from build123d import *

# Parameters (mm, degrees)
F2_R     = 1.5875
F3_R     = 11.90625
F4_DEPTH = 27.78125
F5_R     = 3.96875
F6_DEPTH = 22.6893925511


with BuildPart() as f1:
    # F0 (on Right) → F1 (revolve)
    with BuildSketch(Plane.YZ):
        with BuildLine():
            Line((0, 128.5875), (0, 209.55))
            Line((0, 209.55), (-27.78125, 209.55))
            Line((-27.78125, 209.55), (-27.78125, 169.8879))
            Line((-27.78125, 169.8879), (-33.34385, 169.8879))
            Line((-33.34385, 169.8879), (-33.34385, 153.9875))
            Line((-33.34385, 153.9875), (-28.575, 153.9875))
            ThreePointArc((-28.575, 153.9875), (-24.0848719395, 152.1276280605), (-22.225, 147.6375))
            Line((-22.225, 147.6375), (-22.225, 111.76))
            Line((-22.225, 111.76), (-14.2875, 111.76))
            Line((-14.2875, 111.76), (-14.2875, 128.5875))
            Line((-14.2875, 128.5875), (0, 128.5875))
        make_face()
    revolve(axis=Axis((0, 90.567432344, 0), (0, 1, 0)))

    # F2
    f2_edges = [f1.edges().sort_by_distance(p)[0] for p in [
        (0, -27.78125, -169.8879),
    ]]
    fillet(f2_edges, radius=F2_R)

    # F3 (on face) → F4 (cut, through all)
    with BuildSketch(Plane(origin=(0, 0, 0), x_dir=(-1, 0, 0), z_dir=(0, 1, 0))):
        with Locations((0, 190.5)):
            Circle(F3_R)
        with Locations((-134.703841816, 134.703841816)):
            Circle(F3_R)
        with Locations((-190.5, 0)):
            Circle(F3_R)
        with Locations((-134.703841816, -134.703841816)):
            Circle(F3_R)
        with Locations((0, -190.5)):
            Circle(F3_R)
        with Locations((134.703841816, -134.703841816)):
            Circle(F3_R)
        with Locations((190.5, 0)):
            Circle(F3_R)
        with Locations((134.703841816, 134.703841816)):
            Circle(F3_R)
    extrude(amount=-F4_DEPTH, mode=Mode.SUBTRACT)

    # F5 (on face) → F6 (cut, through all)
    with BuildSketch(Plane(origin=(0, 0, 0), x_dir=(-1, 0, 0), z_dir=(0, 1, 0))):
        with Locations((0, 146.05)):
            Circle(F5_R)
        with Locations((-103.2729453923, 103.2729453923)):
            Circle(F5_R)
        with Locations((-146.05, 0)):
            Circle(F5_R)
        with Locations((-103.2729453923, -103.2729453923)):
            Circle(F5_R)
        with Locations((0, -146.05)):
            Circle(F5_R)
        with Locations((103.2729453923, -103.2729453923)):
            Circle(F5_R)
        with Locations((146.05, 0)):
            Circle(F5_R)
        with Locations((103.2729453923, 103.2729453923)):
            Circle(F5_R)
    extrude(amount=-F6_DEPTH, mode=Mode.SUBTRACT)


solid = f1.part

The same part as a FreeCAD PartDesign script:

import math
import FreeCAD as App
import Part
import Sketcher
Q = App.Units.Quantity


def edges_at(feature, points):
    """Names of the edges that pass closest to the given points."""
    edges = feature.Shape.Edges
    near = lambda p: min(range(len(edges)), key=lambda i: edges[i].distToShape(Part.Vertex(*p))[0])
    return sorted({f"Edge{near(p) + 1}" for p in points})

doc = App.newDocument("Part")
params = doc.addObject("Spreadsheet::Sheet", "Params")
for row, (alias, value) in enumerate([
    ("sketch1_radius", "0.25 in"),
    ("sketch1_width", "1.09375 in"),
    ("sketch1_width2", "0.219 in"),
    ("sketch1_width3", "0.3125 in"),
    ("sketch1_width4", "0.5625 in"),
    ("revolution_angle", "360 deg"),
    ("fillet_radius", "0.0625 in"),
    ("sketch2_diameter", "0.9375 in"),
    ("sketch3_diameter", "0.3125 in"),
], start=1):
    params.set(f"A{row}", alias)
    params.set(f"B{row}", "=" + value)
    params.setAlias(f"B{row}", alias)

body = doc.addObject("PartDesign::Body", "Body")

# Sketch on YZ plane
sketch1 = body.newObject("Sketcher::SketchObject", "Sketch")
sketch1.AttachmentSupport = (doc.getObject("YZ_Plane"), [""])
sketch1.MapMode = "FlatFace"
sketch1.addGeometry([
    Part.LineSegment(App.Vector(0, 128.5875, 0), App.Vector(0, 209.55, 0)),  # 0
    Part.LineSegment(App.Vector(0, 209.55, 0), App.Vector(-27.78125, 209.55, 0)),  # 1
    Part.LineSegment(App.Vector(-27.78125, 209.55, 0), App.Vector(-27.78125, 169.8879, 0)),  # 2
    Part.LineSegment(App.Vector(-27.78125, 169.8879, 0), App.Vector(-33.34385, 169.8879, 0)),  # 3
    Part.LineSegment(App.Vector(-33.34385, 169.8879, 0), App.Vector(-33.34385, 153.9875, 0)),  # 4
    Part.LineSegment(App.Vector(-33.34385, 153.9875, 0), App.Vector(-28.575, 153.9875, 0)),  # 5
    Part.ArcOfCircle(Part.Circle(App.Vector(-28.575, 147.6375, 0), App.Vector(0, 0, 1), 6.35), math.radians(0), math.radians(90)),  # 6
    Part.LineSegment(App.Vector(-22.225, 147.6375, 0), App.Vector(-22.225, 111.76, 0)),  # 7
    Part.LineSegment(App.Vector(-22.225, 111.76, 0), App.Vector(-14.2875, 111.76, 0)),  # 8
    Part.LineSegment(App.Vector(-14.2875, 111.76, 0), App.Vector(-14.2875, 128.5875, 0)),  # 9
    Part.LineSegment(App.Vector(-14.2875, 128.5875, 0), App.Vector(0, 128.5875, 0)),  # 10
], False)
sketch1.addConstraint([
    Sketcher.Constraint("Coincident", 0, 2, 1, 1),
    Sketcher.Constraint("Coincident", 1, 2, 2, 1),
    Sketcher.Constraint("Coincident", 2, 2, 3, 1),
    Sketcher.Constraint("Coincident", 3, 2, 4, 1),
    Sketcher.Constraint("Coincident", 4, 2, 5, 1),
    Sketcher.Constraint("Tangent", 5, 2, 6, 2),
    Sketcher.Constraint("Tangent", 6, 1, 7, 1),
    Sketcher.Constraint("Coincident", 7, 2, 8, 1),
    Sketcher.Constraint("Coincident", 8, 2, 9, 1),
    Sketcher.Constraint("Coincident", 9, 2, 10, 1),
    Sketcher.Constraint("Coincident", 10, 2, 0, 1),
    Sketcher.Constraint("Vertical", 0),
    Sketcher.Constraint("Horizontal", 1),
    Sketcher.Constraint("Vertical", 2),
    Sketcher.Constraint("Horizontal", 3),
    Sketcher.Constraint("Vertical", 4),
    Sketcher.Constraint("Horizontal", 5),
    Sketcher.Constraint("Vertical", 7),
    Sketcher.Constraint("Horizontal", 8),
    Sketcher.Constraint("Vertical", 9),
    Sketcher.Constraint("Horizontal", 10),
    Sketcher.Constraint("PointOnObject", 0, 2, -2),
    Sketcher.Constraint("Radius", 6, Q("0.25 in")),
    Sketcher.Constraint("DistanceY", 9, 2, 5, 2, Q("1 in")),
    Sketcher.Constraint("DistanceY", -1, 1, 7, 2, Q("4.4 in")),
    Sketcher.Constraint("DistanceX", 1, 2, 1, 1, Q("1.09375 in")),
    Sketcher.Constraint("DistanceX", 3, 2, 3, 1, Q("0.219 in")),
    Sketcher.Constraint("DistanceX", 8, 1, 8, 2, Q("0.3125 in")),
    Sketcher.Constraint("DistanceX", 10, 1, 10, 2, Q("0.5625 in")),
    Sketcher.Constraint("DistanceY", 0, 1, 0, 2, Q("3.1875 in")),
    Sketcher.Constraint("DistanceY", 4, 2, 4, 1, Q("0.626 in")),
    Sketcher.Constraint("DistanceY", -1, 1, 0, 2, Q("8.25 in")),
])
sketch1.setExpression("Constraints[22]", "Params.sketch1_radius")
sketch1.setExpression("Constraints[25]", "Params.sketch1_width")
sketch1.setExpression("Constraints[26]", "Params.sketch1_width2")
sketch1.setExpression("Constraints[27]", "Params.sketch1_width3")
sketch1.setExpression("Constraints[28]", "Params.sketch1_width4")
revolution = body.newObject("PartDesign::Revolution", "Revolution")
revolution.Profile = sketch1
revolution.ReferenceAxis = (sketch1, ["H_Axis"])
revolution.setExpression("Angle", "Params.revolution_angle")
doc.recompute()

fillet = body.newObject("PartDesign::Fillet", "Fillet")
fillet.Base = (revolution, edges_at(revolution, [(0, -27.781, -169.888)]))
fillet.setExpression("Radius", "Params.fillet_radius")

# Sketch on XZ plane
sketch2 = body.newObject("Sketcher::SketchObject", "Sketch001")
sketch2.AttachmentSupport = (doc.getObject("XZ_Plane"), [""])
sketch2.MapMode = "FlatFace"
sketch2.addGeometry([
    Part.Circle(App.Vector(0, 190.5, 0), App.Vector(0, 0, 1), 11.90625),  # 0
    Part.Circle(App.Vector(134.703842, 134.703842, 0), App.Vector(0, 0, 1), 11.90625),  # 1
    Part.Circle(App.Vector(190.5, 0, 0), App.Vector(0, 0, 1), 11.90625),  # 2
    Part.Circle(App.Vector(134.703842, -134.703842, 0), App.Vector(0, 0, 1), 11.90625),  # 3
    Part.Circle(App.Vector(0, -190.5, 0), App.Vector(0, 0, 1), 11.90625),  # 4
    Part.Circle(App.Vector(-134.703842, -134.703842, 0), App.Vector(0, 0, 1), 11.90625),  # 5
    Part.Circle(App.Vector(-190.5, 0, 0), App.Vector(0, 0, 1), 11.90625),  # 6
    Part.Circle(App.Vector(-134.703842, 134.703842, 0), App.Vector(0, 0, 1), 11.90625),  # 7
], False)
sketch2.addConstraint([
    Sketcher.Constraint("Equal", 0, 1),
    Sketcher.Constraint("Equal", 1, 2),
    Sketcher.Constraint("Equal", 2, 3),
    Sketcher.Constraint("Equal", 3, 4),
    Sketcher.Constraint("Equal", 4, 5),
    Sketcher.Constraint("Equal", 5, 6),
    Sketcher.Constraint("Equal", 6, 7),
    Sketcher.Constraint("Symmetric", 0, 3, 4, 3, -1, 1),
    Sketcher.Constraint("Symmetric", 1, 3, 5, 3, -1, 1),
    Sketcher.Constraint("Symmetric", 2, 3, 6, 3, -1, 1),
    Sketcher.Constraint("Symmetric", 3, 3, 7, 3, -1, 1),
    Sketcher.Constraint("Symmetric", 3, 3, 5, 3, -2),
    Sketcher.Constraint("PointOnObject", 0, 3, -2),
    Sketcher.Constraint("PointOnObject", 2, 3, -1),
    Sketcher.Constraint("Diameter", 0, Q("0.9375 in")),
    Sketcher.Constraint("DistanceY", 4, 3, 0, 3, Q("15 in")),
    Sketcher.Constraint("DistanceX", -1, 1, 2, 3, Q("7.5 in")),
    Sketcher.Constraint("DistanceX", -1, 1, 1, 3, Q("134.703842 mm")),
    Sketcher.Constraint("DistanceY", -1, 1, 1, 3, Q("134.703842 mm")),
])
sketch2.setExpression("Constraints[14]", "Params.sketch2_diameter")
pocket1 = body.newObject("PartDesign::Pocket", "Pocket")
pocket1.Profile = sketch2
pocket1.Type = "ThroughAll"
pocket1.Reversed = True

# Sketch on XZ plane
sketch3 = body.newObject("Sketcher::SketchObject", "Sketch002")
sketch3.AttachmentSupport = (doc.getObject("XZ_Plane"), [""])
sketch3.MapMode = "FlatFace"
sketch3.addGeometry([
    Part.Circle(App.Vector(0, 146.05, 0), App.Vector(0, 0, 1), 3.96875),  # 0
    Part.Circle(App.Vector(103.272945, 103.272945, 0), App.Vector(0, 0, 1), 3.96875),  # 1
    Part.Circle(App.Vector(146.05, 0, 0), App.Vector(0, 0, 1), 3.96875),  # 2
    Part.Circle(App.Vector(103.272945, -103.272945, 0), App.Vector(0, 0, 1), 3.96875),  # 3
    Part.Circle(App.Vector(0, -146.05, 0), App.Vector(0, 0, 1), 3.96875),  # 4
    Part.Circle(App.Vector(-103.272945, -103.272945, 0), App.Vector(0, 0, 1), 3.96875),  # 5
    Part.Circle(App.Vector(-146.05, 0, 0), App.Vector(0, 0, 1), 3.96875),  # 6
    Part.Circle(App.Vector(-103.272945, 103.272945, 0), App.Vector(0, 0, 1), 3.96875),  # 7
], False)
sketch3.addConstraint([
    Sketcher.Constraint("Equal", 0, 1),
    Sketcher.Constraint("Equal", 1, 2),
    Sketcher.Constraint("Equal", 2, 3),
    Sketcher.Constraint("Equal", 3, 4),
    Sketcher.Constraint("Equal", 4, 5),
    Sketcher.Constraint("Equal", 5, 6),
    Sketcher.Constraint("Equal", 6, 7),
    Sketcher.Constraint("Symmetric", 0, 3, 4, 3, -1, 1),
    Sketcher.Constraint("Symmetric", 1, 3, 5, 3, -1, 1),
    Sketcher.Constraint("Symmetric", 2, 3, 6, 3, -1, 1),
    Sketcher.Constraint("Symmetric", 3, 3, 7, 3, -1, 1),
    Sketcher.Constraint("Symmetric", 3, 3, 5, 3, -2),
    Sketcher.Constraint("PointOnObject", 0, 3, -2),
    Sketcher.Constraint("PointOnObject", 2, 3, -1),
    Sketcher.Constraint("Diameter", 0, Q("0.3125 in")),
    Sketcher.Constraint("DistanceY", 4, 3, 0, 3, Q("11.5 in")),
    Sketcher.Constraint("DistanceX", -1, 1, 2, 3, Q("5.75 in")),
    Sketcher.Constraint("DistanceY", 3, 3, 1, 3, Q("206.545891 mm")),
    Sketcher.Constraint("DistanceX", 5, 3, 3, 3, Q("206.545891 mm")),
])
sketch3.setExpression("Constraints[14]", "Params.sketch3_diameter")
pocket2 = body.newObject("PartDesign::Pocket", "Pocket001")
pocket2.Profile = sketch3
pocket2.Type = "ThroughAll"
pocket2.Reversed = True

doc.recompute()
